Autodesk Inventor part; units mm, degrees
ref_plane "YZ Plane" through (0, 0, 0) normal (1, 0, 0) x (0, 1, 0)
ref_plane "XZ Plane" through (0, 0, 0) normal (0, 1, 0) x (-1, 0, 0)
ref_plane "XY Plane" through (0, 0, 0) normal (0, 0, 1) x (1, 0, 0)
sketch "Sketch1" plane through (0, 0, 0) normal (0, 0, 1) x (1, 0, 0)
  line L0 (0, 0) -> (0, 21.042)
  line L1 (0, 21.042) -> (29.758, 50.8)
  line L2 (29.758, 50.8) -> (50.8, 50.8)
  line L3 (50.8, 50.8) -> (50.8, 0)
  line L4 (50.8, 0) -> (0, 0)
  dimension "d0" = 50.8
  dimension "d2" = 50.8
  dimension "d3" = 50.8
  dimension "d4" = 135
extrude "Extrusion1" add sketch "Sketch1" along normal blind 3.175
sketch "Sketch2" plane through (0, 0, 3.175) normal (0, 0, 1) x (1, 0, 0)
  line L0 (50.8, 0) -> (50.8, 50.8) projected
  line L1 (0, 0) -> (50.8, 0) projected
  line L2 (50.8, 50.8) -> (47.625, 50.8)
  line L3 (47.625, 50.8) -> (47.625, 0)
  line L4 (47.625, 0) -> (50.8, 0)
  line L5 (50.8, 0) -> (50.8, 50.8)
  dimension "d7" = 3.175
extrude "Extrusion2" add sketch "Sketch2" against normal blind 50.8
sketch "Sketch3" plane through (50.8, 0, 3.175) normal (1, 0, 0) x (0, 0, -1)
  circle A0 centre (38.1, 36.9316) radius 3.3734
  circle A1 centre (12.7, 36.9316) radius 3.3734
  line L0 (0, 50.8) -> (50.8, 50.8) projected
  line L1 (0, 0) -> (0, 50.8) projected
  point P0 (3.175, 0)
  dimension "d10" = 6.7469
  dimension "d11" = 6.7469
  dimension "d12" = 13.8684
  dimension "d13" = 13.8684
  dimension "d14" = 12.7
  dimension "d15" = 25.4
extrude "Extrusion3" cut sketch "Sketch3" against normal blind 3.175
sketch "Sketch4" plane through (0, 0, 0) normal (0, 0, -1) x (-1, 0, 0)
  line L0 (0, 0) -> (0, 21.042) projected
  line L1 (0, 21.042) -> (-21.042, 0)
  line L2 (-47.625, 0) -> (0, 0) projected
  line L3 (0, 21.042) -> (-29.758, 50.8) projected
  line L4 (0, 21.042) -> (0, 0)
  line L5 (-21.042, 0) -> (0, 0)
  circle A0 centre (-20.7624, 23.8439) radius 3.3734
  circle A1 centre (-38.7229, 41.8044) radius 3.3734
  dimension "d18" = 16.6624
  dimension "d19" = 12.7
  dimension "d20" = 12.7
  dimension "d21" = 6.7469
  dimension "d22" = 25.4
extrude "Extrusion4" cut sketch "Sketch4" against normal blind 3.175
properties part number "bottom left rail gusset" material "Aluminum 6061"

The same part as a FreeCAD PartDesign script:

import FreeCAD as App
import Part
import Sketcher
Q = App.Units.Quantity

doc = App.newDocument("Part")
body = doc.addObject("PartDesign::Body", "Body")

# Sketch on XY plane
sketch1 = body.newObject("Sketcher::SketchObject", "Sketch")
sketch1.AttachmentSupport = (doc.getObject("XY_Plane"), [""])
sketch1.MapMode = "FlatFace"
sketch1.addGeometry(Part.LineSegment(App.Vector(0, 21, 0), App.Vector(0, 0, 0)), False)
sketch1.addGeometry(Part.LineSegment(App.Vector(0, 0, 0), App.Vector(51, 0, 0)), False)
sketch1.addGeometry(Part.LineSegment(App.Vector(51, 0, 0), App.Vector(51, 51, 0)), False)
sketch1.addGeometry(Part.LineSegment(App.Vector(51, 51, 0), App.Vector(30, 51, 0)), False)
sketch1.addGeometry(Part.LineSegment(App.Vector(30, 51, 0), App.Vector(0, 21, 0)), False)
sketch1.addConstraint(Sketcher.Constraint("Coincident", 0, 2, 1, 1))
sketch1.addConstraint(Sketcher.Constraint("Coincident", 1, 2, 2, 1))
sketch1.addConstraint(Sketcher.Constraint("Coincident", 2, 2, 3, 1))
sketch1.addConstraint(Sketcher.Constraint("Coincident", 3, 2, 4, 1))
sketch1.addConstraint(Sketcher.Constraint("Coincident", 4, 2, 0, 1))
sketch1.addConstraint(Sketcher.Constraint("Vertical", 0))
sketch1.addConstraint(Sketcher.Constraint("Horizontal", 1))
sketch1.addConstraint(Sketcher.Constraint("Vertical", 2))
sketch1.addConstraint(Sketcher.Constraint("Horizontal", 3))
sketch1.addConstraint(Sketcher.Constraint("Coincident", 0, 2, -1, 1))
sketch1.addConstraint(Sketcher.Constraint("Equal", 3, 0))
sketch1.addConstraint(Sketcher.Constraint("Equal", 1, 2))
sketch1.addConstraint(Sketcher.Constraint("DistanceX", 1, 1, 1, 2, Q("2 in")))
sketch1.addConstraint(Sketcher.Constraint("DistanceX", 3, 2, 3, 1, 21.042))
pad1 = body.newObject("PartDesign::Pad", "Pad")
pad1.Profile = sketch1
pad1.Length = Q("0.125 in")

# Sketch on XY plane
sketch2 = body.newObject("Sketcher::SketchObject", "Sketch001")
sketch2.AttachmentSupport = (doc.getObject("XY_Plane"), [""])
sketch2.MapMode = "FlatFace"
sketch2.AttachmentOffset = App.Placement(App.Vector(0, 0, 0.125 * 25.4), App.Rotation())
sketch2.addGeometry(Part.LineSegment(App.Vector(47.6, 0, 0), App.Vector(50.8, 0, 0)), False)
sketch2.addGeometry(Part.LineSegment(App.Vector(50.8, 0, 0), App.Vector(50.8, 50.8, 0)), False)
sketch2.addGeometry(Part.LineSegment(App.Vector(50.8, 50.8, 0), App.Vector(47.6, 50.8, 0)), False)
sketch2.addGeometry(Part.LineSegment(App.Vector(47.6, 50.8, 0), App.Vector(47.6, 0, 0)), False)
sketch2.addConstraint(Sketcher.Constraint("Coincident", 0, 2, 1, 1))
sketch2.addConstraint(Sketcher.Constraint("Coincident", 1, 2, 2, 1))
sketch2.addConstraint(Sketcher.Constraint("Coincident", 2, 2, 3, 1))
sketch2.addConstraint(Sketcher.Constraint("Coincident", 3, 2, 0, 1))
sketch2.addConstraint(Sketcher.Constraint("Horizontal", 0))
sketch2.addConstraint(Sketcher.Constraint("Vertical", 1))
sketch2.addConstraint(Sketcher.Constraint("Horizontal", 2))
sketch2.addConstraint(Sketcher.Constraint("Vertical", 3))
sketch2.addConstraint(Sketcher.Constraint("PointOnObject", 0, 2, -1))
sketch2.addConstraint(Sketcher.Constraint("DistanceX", 0, 1, 0, 2, Q("0.125 in")))
sketch2.addConstraint(Sketcher.Constraint("DistanceY", 1, 1, 1, 2, Q("2 in")))
sketch2.addConstraint(Sketcher.Constraint("DistanceX", -1, 1, 0, 2, Q("2 in")))
pad2 = body.newObject("PartDesign::Pad", "Pad001")
pad2.Profile = sketch2
pad2.Length = Q("2 in")
pad2.Reversed = True

# Sketch on YZ plane
sketch3 = body.newObject("Sketcher::SketchObject", "Sketch002")
sketch3.AttachmentSupport = (doc.getObject("YZ_Plane"), [""])
sketch3.MapMode = "FlatFace"
sketch3.AttachmentOffset = App.Placement(App.Vector(0, 0, 2 * 25.4), App.Rotation())
sketch3.addGeometry(Part.Circle(App.Vector(36.9, -34.9, 0), App.Vector(0, 0, 1), 3.4), False)
sketch3.addGeometry(Part.Circle(App.Vector(36.9, -9.5, 0), App.Vector(0, 0, 1), 3.4), False)
sketch3.addConstraint(Sketcher.Constraint("Equal", 0, 1))
sketch3.addConstraint(Sketcher.Constraint("Vertical", 0, 3, 1, 3))
sketch3.addConstraint(Sketcher.Constraint("Diameter", 0, Q("0.265622 in")))
sketch3.addConstraint(Sketcher.Constraint("DistanceY", 0, 3, 1, 3, Q("1 in")))
sketch3.addConstraint(Sketcher.Constraint("DistanceX", -1, 1, 0, 3, Q("1.454 in")))
sketch3.addConstraint(Sketcher.Constraint("DistanceY", 0, 3, -1, 1, Q("1.375 in")))
pocket1 = body.newObject("PartDesign::Pocket", "Pocket")
pocket1.Profile = sketch3
pocket1.Length = Q("0.125 in")

# Sketch on XY plane
sketch4 = body.newObject("Sketcher::SketchObject", "Sketch003")
sketch4.AttachmentSupport = (doc.getObject("XY_Plane"), [""])
sketch4.MapMode = "FlatFace"
sketch4.addGeometry(Part.LineSegment(App.Vector(21, 0, 0), App.Vector(0, 0, 0)), False)
sketch4.addGeometry(Part.LineSegment(App.Vector(0, 0, 0), App.Vector(0, 21, 0)), False)
sketch4.addGeometry(Part.LineSegment(App.Vector(0, 21, 0), App.Vector(21, 0, 0)), False)
sketch4.addGeometry(Part.Circle(App.Vector(20.8, 23.8, 0), App.Vector(0, 0, 1), 3.4), False)
sketch4.addGeometry(Part.Circle(App.Vector(38.7, 41.8, 0), App.Vector(0, 0, 1), 3.4), False)
sketch4.addConstraint(Sketcher.Constraint("Coincident", 0, 2, 1, 1))
sketch4.addConstraint(Sketcher.Constraint("Coincident", 1, 2, 2, 1))
sketch4.addConstraint(Sketcher.Constraint("Coincident", 2, 2, 0, 1))
sketch4.addConstraint(Sketcher.Constraint("Horizontal", 0))
sketch4.addConstraint(Sketcher.Constraint("Vertical", 1))
sketch4.addConstraint(Sketcher.Constraint("Coincident", 0, 2, -1, 1))
sketch4.addConstraint(Sketcher.Constraint("Equal", 3, 4))
sketch4.addConstraint(Sketcher.Constraint("Equal", 0, 1))
sketch4.addConstraint(Sketcher.Constraint("Diameter", 3, Q("0.265622 in")))
sketch4.addConstraint(Sketcher.Constraint("DistanceX", 3, 3, 2, 2, Q("0.011 in")))
sketch4.addConstraint(Sketcher.Constraint("DistanceX", 0, 2, 0, 1, 21.042))
sketch4.addConstraint(Sketcher.Constraint("DistanceX", 3, 3, 4, 3, Q("0.7071 in")))
sketch4.addConstraint(Sketcher.Constraint("DistanceY", 3, 3, 4, 3, Q("0.7071 in")))
sketch4.addConstraint(Sketcher.Constraint("DistanceY", 1, 2, 3, 3, Q("0.1103 in")))
pocket2 = body.newObject("PartDesign::Pocket", "Pocket001")
pocket2.Profile = sketch4
pocket2.Length = Q("0.125 in")
pocket2.Reversed = True

doc.recompute()
